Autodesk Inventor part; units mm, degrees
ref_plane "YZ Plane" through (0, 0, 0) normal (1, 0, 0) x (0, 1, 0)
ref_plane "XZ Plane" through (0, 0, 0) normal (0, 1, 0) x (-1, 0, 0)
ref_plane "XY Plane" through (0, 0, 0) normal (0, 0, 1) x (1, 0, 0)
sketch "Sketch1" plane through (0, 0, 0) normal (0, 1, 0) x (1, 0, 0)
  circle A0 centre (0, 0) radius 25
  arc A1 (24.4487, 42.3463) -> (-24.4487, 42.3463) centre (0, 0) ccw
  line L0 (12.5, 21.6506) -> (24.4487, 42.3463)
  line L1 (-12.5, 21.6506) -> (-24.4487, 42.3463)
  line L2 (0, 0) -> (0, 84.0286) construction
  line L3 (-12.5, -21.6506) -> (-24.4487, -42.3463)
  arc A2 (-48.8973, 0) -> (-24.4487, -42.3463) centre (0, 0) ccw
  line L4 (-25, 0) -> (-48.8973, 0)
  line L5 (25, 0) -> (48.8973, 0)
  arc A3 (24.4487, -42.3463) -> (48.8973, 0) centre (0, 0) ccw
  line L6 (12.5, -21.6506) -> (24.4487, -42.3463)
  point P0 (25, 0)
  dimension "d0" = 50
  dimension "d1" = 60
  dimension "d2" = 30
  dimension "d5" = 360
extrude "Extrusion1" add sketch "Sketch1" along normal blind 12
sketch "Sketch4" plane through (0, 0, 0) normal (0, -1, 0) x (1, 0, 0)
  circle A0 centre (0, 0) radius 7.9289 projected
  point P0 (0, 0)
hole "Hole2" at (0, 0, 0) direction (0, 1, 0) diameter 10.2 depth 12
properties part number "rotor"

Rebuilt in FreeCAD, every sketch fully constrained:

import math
import FreeCAD as App
import Part
import Sketcher

V = App.Vector
Q = App.Units.Quantity

doc = App.newDocument("Part")
body = doc.addObject("PartDesign::Body", "Body")

sketch1 = body.newObject("Sketcher::SketchObject", "Sketch")
sketch1.AttachmentSupport = (doc.getObject("XZ_Plane"), [""])
sketch1.MapMode = "FlatFace"
sketch1.addGeometry(Part.ArcOfCircle(Part.Circle(V(0, 0, 0), V(0, 0, 1), 25), math.radians(60), math.radians(120)), False)
sketch1.addGeometry(Part.LineSegment(V(12, 22, 0), V(24, 42, 0)), False)
sketch1.addGeometry(Part.ArcOfCircle(Part.Circle(V(0, 0, 0), V(0, 0, 1), 49), math.radians(0), math.radians(60)), False)
sketch1.addGeometry(Part.LineSegment(V(49, 0, 0), V(25, 0, 0)), False)
sketch1.addGeometry(Part.ArcOfCircle(Part.Circle(V(0, 0, 0), V(0, 0, 1), 25), math.radians(-60), math.radians(0)), False)
sketch1.addGeometry(Part.LineSegment(V(12, -22, 0), V(24, -42, 0)), False)
sketch1.addGeometry(Part.ArcOfCircle(Part.Circle(V(0, 0, 0), V(0, 0, 1), 49), math.radians(-120), math.radians(-60)), False)
sketch1.addGeometry(Part.LineSegment(V(-24, -42, 0), V(-12, -22, 0)), False)
sketch1.addGeometry(Part.ArcOfCircle(Part.Circle(V(0, 0, 0), V(0, 0, 1), 25), math.radians(180), math.radians(240)), False)
sketch1.addGeometry(Part.LineSegment(V(-25, 0, 0), V(-49, 0, 0)), False)
sketch1.addGeometry(Part.ArcOfCircle(Part.Circle(V(0, 0, 0), V(0, 0, 1), 49), math.radians(120), math.radians(180)), False)
sketch1.addGeometry(Part.LineSegment(V(-24, 42, 0), V(-12, 22, 0)), False)
sketch1.addConstraint(Sketcher.Constraint("Coincident", 0, 1, 1, 1))
sketch1.addConstraint(Sketcher.Constraint("Coincident", 1, 2, 2, 2))
sketch1.addConstraint(Sketcher.Constraint("Coincident", 2, 1, 3, 1))
sketch1.addConstraint(Sketcher.Constraint("Coincident", 3, 2, 4, 2))
sketch1.addConstraint(Sketcher.Constraint("Coincident", 4, 1, 5, 1))
sketch1.addConstraint(Sketcher.Constraint("Coincident", 5, 2, 6, 2))
sketch1.addConstraint(Sketcher.Constraint("Coincident", 6, 1, 7, 1))
sketch1.addConstraint(Sketcher.Constraint("Coincident", 7, 2, 8, 2))
sketch1.addConstraint(Sketcher.Constraint("Coincident", 8, 1, 9, 1))
sketch1.addConstraint(Sketcher.Constraint("Coincident", 9, 2, 10, 2))
sketch1.addConstraint(Sketcher.Constraint("Coincident", 10, 1, 11, 1))
sketch1.addConstraint(Sketcher.Constraint("Coincident", 11, 2, 0, 2))
sketch1.addConstraint(Sketcher.Constraint("Horizontal", 3))
sketch1.addConstraint(Sketcher.Constraint("Horizontal", 9))
sketch1.addConstraint(Sketcher.Constraint("Coincident", 0, 3, -1, 1))
sketch1.addConstraint(Sketcher.Constraint("Coincident", 2, 3, -1, 1))
sketch1.addConstraint(Sketcher.Constraint("Coincident", 4, 3, -1, 1))
sketch1.addConstraint(Sketcher.Constraint("Coincident", 6, 3, -1, 1))
sketch1.addConstraint(Sketcher.Constraint("Coincident", 8, 3, -1, 1))
sketch1.addConstraint(Sketcher.Constraint("Coincident", 10, 3, -1, 1))
sketch1.addConstraint(Sketcher.Constraint("Equal", 0, 4))
sketch1.addConstraint(Sketcher.Constraint("Equal", 2, 6))
sketch1.addConstraint(Sketcher.Constraint("Equal", 4, 8))
sketch1.addConstraint(Sketcher.Constraint("Equal", 6, 10))
sketch1.addConstraint(Sketcher.Constraint("PointOnObject", 2, 1, -1))
sketch1.addConstraint(Sketcher.Constraint("PointOnObject", 8, 1, -1))
sketch1.addConstraint(Sketcher.Constraint("Parallel", 1, 7))
sketch1.addConstraint(Sketcher.Constraint("Parallel", 5, 11))
sketch1.addConstraint(Sketcher.Constraint("Horizontal", 5, 2, 6, 1))
sketch1.addConstraint(Sketcher.Constraint("Horizontal", 4, 1, 7, 2))
sketch1.addConstraint(Sketcher.Constraint("Horizontal", 1, 2, 10, 1))
sketch1.addConstraint(Sketcher.Constraint("Vertical", 0, 1, 4, 1))
sketch1.addConstraint(Sketcher.Constraint("Radius", 0, Q("25 mm")))
sketch1.addConstraint(Sketcher.Constraint("Angle", 1, Q("60 deg")))
sketch1.addConstraint(Sketcher.Constraint("DistanceX", -1, 1, 0, 1, Q("12.5 mm")))
sketch1.addConstraint(Sketcher.Constraint("Radius", 2, Q("48.8973 mm")))
pad1 = body.newObject("PartDesign::Pad", "Pad")
pad1.Profile = sketch1
pad1.Length = 12
pad1.Reversed = True

sketch2 = body.newObject("Sketcher::SketchObject", "Sketch001")
sketch2.AttachmentSupport = (doc.getObject("XZ_Plane"), [""])
sketch2.MapMode = "FlatFace"
sketch2.addGeometry(Part.Circle(V(0, 0, 0), V(0, 0, 1), 5), False)
sketch2.addConstraint(Sketcher.Constraint("Coincident", 0, 3, -1, 1))
sketch2.addConstraint(Sketcher.Constraint("Diameter", 0, Q("10.2 mm")))
doc.recompute()
hole = body.newObject("PartDesign::Hole", "Hole")
hole.Profile = sketch2
hole.ThreadType = "None"
hole.Diameter = 10.2
hole.DepthType = "Dimension"
hole.Depth = 12
hole.DrillPoint = "Flat"

doc.recompute()
